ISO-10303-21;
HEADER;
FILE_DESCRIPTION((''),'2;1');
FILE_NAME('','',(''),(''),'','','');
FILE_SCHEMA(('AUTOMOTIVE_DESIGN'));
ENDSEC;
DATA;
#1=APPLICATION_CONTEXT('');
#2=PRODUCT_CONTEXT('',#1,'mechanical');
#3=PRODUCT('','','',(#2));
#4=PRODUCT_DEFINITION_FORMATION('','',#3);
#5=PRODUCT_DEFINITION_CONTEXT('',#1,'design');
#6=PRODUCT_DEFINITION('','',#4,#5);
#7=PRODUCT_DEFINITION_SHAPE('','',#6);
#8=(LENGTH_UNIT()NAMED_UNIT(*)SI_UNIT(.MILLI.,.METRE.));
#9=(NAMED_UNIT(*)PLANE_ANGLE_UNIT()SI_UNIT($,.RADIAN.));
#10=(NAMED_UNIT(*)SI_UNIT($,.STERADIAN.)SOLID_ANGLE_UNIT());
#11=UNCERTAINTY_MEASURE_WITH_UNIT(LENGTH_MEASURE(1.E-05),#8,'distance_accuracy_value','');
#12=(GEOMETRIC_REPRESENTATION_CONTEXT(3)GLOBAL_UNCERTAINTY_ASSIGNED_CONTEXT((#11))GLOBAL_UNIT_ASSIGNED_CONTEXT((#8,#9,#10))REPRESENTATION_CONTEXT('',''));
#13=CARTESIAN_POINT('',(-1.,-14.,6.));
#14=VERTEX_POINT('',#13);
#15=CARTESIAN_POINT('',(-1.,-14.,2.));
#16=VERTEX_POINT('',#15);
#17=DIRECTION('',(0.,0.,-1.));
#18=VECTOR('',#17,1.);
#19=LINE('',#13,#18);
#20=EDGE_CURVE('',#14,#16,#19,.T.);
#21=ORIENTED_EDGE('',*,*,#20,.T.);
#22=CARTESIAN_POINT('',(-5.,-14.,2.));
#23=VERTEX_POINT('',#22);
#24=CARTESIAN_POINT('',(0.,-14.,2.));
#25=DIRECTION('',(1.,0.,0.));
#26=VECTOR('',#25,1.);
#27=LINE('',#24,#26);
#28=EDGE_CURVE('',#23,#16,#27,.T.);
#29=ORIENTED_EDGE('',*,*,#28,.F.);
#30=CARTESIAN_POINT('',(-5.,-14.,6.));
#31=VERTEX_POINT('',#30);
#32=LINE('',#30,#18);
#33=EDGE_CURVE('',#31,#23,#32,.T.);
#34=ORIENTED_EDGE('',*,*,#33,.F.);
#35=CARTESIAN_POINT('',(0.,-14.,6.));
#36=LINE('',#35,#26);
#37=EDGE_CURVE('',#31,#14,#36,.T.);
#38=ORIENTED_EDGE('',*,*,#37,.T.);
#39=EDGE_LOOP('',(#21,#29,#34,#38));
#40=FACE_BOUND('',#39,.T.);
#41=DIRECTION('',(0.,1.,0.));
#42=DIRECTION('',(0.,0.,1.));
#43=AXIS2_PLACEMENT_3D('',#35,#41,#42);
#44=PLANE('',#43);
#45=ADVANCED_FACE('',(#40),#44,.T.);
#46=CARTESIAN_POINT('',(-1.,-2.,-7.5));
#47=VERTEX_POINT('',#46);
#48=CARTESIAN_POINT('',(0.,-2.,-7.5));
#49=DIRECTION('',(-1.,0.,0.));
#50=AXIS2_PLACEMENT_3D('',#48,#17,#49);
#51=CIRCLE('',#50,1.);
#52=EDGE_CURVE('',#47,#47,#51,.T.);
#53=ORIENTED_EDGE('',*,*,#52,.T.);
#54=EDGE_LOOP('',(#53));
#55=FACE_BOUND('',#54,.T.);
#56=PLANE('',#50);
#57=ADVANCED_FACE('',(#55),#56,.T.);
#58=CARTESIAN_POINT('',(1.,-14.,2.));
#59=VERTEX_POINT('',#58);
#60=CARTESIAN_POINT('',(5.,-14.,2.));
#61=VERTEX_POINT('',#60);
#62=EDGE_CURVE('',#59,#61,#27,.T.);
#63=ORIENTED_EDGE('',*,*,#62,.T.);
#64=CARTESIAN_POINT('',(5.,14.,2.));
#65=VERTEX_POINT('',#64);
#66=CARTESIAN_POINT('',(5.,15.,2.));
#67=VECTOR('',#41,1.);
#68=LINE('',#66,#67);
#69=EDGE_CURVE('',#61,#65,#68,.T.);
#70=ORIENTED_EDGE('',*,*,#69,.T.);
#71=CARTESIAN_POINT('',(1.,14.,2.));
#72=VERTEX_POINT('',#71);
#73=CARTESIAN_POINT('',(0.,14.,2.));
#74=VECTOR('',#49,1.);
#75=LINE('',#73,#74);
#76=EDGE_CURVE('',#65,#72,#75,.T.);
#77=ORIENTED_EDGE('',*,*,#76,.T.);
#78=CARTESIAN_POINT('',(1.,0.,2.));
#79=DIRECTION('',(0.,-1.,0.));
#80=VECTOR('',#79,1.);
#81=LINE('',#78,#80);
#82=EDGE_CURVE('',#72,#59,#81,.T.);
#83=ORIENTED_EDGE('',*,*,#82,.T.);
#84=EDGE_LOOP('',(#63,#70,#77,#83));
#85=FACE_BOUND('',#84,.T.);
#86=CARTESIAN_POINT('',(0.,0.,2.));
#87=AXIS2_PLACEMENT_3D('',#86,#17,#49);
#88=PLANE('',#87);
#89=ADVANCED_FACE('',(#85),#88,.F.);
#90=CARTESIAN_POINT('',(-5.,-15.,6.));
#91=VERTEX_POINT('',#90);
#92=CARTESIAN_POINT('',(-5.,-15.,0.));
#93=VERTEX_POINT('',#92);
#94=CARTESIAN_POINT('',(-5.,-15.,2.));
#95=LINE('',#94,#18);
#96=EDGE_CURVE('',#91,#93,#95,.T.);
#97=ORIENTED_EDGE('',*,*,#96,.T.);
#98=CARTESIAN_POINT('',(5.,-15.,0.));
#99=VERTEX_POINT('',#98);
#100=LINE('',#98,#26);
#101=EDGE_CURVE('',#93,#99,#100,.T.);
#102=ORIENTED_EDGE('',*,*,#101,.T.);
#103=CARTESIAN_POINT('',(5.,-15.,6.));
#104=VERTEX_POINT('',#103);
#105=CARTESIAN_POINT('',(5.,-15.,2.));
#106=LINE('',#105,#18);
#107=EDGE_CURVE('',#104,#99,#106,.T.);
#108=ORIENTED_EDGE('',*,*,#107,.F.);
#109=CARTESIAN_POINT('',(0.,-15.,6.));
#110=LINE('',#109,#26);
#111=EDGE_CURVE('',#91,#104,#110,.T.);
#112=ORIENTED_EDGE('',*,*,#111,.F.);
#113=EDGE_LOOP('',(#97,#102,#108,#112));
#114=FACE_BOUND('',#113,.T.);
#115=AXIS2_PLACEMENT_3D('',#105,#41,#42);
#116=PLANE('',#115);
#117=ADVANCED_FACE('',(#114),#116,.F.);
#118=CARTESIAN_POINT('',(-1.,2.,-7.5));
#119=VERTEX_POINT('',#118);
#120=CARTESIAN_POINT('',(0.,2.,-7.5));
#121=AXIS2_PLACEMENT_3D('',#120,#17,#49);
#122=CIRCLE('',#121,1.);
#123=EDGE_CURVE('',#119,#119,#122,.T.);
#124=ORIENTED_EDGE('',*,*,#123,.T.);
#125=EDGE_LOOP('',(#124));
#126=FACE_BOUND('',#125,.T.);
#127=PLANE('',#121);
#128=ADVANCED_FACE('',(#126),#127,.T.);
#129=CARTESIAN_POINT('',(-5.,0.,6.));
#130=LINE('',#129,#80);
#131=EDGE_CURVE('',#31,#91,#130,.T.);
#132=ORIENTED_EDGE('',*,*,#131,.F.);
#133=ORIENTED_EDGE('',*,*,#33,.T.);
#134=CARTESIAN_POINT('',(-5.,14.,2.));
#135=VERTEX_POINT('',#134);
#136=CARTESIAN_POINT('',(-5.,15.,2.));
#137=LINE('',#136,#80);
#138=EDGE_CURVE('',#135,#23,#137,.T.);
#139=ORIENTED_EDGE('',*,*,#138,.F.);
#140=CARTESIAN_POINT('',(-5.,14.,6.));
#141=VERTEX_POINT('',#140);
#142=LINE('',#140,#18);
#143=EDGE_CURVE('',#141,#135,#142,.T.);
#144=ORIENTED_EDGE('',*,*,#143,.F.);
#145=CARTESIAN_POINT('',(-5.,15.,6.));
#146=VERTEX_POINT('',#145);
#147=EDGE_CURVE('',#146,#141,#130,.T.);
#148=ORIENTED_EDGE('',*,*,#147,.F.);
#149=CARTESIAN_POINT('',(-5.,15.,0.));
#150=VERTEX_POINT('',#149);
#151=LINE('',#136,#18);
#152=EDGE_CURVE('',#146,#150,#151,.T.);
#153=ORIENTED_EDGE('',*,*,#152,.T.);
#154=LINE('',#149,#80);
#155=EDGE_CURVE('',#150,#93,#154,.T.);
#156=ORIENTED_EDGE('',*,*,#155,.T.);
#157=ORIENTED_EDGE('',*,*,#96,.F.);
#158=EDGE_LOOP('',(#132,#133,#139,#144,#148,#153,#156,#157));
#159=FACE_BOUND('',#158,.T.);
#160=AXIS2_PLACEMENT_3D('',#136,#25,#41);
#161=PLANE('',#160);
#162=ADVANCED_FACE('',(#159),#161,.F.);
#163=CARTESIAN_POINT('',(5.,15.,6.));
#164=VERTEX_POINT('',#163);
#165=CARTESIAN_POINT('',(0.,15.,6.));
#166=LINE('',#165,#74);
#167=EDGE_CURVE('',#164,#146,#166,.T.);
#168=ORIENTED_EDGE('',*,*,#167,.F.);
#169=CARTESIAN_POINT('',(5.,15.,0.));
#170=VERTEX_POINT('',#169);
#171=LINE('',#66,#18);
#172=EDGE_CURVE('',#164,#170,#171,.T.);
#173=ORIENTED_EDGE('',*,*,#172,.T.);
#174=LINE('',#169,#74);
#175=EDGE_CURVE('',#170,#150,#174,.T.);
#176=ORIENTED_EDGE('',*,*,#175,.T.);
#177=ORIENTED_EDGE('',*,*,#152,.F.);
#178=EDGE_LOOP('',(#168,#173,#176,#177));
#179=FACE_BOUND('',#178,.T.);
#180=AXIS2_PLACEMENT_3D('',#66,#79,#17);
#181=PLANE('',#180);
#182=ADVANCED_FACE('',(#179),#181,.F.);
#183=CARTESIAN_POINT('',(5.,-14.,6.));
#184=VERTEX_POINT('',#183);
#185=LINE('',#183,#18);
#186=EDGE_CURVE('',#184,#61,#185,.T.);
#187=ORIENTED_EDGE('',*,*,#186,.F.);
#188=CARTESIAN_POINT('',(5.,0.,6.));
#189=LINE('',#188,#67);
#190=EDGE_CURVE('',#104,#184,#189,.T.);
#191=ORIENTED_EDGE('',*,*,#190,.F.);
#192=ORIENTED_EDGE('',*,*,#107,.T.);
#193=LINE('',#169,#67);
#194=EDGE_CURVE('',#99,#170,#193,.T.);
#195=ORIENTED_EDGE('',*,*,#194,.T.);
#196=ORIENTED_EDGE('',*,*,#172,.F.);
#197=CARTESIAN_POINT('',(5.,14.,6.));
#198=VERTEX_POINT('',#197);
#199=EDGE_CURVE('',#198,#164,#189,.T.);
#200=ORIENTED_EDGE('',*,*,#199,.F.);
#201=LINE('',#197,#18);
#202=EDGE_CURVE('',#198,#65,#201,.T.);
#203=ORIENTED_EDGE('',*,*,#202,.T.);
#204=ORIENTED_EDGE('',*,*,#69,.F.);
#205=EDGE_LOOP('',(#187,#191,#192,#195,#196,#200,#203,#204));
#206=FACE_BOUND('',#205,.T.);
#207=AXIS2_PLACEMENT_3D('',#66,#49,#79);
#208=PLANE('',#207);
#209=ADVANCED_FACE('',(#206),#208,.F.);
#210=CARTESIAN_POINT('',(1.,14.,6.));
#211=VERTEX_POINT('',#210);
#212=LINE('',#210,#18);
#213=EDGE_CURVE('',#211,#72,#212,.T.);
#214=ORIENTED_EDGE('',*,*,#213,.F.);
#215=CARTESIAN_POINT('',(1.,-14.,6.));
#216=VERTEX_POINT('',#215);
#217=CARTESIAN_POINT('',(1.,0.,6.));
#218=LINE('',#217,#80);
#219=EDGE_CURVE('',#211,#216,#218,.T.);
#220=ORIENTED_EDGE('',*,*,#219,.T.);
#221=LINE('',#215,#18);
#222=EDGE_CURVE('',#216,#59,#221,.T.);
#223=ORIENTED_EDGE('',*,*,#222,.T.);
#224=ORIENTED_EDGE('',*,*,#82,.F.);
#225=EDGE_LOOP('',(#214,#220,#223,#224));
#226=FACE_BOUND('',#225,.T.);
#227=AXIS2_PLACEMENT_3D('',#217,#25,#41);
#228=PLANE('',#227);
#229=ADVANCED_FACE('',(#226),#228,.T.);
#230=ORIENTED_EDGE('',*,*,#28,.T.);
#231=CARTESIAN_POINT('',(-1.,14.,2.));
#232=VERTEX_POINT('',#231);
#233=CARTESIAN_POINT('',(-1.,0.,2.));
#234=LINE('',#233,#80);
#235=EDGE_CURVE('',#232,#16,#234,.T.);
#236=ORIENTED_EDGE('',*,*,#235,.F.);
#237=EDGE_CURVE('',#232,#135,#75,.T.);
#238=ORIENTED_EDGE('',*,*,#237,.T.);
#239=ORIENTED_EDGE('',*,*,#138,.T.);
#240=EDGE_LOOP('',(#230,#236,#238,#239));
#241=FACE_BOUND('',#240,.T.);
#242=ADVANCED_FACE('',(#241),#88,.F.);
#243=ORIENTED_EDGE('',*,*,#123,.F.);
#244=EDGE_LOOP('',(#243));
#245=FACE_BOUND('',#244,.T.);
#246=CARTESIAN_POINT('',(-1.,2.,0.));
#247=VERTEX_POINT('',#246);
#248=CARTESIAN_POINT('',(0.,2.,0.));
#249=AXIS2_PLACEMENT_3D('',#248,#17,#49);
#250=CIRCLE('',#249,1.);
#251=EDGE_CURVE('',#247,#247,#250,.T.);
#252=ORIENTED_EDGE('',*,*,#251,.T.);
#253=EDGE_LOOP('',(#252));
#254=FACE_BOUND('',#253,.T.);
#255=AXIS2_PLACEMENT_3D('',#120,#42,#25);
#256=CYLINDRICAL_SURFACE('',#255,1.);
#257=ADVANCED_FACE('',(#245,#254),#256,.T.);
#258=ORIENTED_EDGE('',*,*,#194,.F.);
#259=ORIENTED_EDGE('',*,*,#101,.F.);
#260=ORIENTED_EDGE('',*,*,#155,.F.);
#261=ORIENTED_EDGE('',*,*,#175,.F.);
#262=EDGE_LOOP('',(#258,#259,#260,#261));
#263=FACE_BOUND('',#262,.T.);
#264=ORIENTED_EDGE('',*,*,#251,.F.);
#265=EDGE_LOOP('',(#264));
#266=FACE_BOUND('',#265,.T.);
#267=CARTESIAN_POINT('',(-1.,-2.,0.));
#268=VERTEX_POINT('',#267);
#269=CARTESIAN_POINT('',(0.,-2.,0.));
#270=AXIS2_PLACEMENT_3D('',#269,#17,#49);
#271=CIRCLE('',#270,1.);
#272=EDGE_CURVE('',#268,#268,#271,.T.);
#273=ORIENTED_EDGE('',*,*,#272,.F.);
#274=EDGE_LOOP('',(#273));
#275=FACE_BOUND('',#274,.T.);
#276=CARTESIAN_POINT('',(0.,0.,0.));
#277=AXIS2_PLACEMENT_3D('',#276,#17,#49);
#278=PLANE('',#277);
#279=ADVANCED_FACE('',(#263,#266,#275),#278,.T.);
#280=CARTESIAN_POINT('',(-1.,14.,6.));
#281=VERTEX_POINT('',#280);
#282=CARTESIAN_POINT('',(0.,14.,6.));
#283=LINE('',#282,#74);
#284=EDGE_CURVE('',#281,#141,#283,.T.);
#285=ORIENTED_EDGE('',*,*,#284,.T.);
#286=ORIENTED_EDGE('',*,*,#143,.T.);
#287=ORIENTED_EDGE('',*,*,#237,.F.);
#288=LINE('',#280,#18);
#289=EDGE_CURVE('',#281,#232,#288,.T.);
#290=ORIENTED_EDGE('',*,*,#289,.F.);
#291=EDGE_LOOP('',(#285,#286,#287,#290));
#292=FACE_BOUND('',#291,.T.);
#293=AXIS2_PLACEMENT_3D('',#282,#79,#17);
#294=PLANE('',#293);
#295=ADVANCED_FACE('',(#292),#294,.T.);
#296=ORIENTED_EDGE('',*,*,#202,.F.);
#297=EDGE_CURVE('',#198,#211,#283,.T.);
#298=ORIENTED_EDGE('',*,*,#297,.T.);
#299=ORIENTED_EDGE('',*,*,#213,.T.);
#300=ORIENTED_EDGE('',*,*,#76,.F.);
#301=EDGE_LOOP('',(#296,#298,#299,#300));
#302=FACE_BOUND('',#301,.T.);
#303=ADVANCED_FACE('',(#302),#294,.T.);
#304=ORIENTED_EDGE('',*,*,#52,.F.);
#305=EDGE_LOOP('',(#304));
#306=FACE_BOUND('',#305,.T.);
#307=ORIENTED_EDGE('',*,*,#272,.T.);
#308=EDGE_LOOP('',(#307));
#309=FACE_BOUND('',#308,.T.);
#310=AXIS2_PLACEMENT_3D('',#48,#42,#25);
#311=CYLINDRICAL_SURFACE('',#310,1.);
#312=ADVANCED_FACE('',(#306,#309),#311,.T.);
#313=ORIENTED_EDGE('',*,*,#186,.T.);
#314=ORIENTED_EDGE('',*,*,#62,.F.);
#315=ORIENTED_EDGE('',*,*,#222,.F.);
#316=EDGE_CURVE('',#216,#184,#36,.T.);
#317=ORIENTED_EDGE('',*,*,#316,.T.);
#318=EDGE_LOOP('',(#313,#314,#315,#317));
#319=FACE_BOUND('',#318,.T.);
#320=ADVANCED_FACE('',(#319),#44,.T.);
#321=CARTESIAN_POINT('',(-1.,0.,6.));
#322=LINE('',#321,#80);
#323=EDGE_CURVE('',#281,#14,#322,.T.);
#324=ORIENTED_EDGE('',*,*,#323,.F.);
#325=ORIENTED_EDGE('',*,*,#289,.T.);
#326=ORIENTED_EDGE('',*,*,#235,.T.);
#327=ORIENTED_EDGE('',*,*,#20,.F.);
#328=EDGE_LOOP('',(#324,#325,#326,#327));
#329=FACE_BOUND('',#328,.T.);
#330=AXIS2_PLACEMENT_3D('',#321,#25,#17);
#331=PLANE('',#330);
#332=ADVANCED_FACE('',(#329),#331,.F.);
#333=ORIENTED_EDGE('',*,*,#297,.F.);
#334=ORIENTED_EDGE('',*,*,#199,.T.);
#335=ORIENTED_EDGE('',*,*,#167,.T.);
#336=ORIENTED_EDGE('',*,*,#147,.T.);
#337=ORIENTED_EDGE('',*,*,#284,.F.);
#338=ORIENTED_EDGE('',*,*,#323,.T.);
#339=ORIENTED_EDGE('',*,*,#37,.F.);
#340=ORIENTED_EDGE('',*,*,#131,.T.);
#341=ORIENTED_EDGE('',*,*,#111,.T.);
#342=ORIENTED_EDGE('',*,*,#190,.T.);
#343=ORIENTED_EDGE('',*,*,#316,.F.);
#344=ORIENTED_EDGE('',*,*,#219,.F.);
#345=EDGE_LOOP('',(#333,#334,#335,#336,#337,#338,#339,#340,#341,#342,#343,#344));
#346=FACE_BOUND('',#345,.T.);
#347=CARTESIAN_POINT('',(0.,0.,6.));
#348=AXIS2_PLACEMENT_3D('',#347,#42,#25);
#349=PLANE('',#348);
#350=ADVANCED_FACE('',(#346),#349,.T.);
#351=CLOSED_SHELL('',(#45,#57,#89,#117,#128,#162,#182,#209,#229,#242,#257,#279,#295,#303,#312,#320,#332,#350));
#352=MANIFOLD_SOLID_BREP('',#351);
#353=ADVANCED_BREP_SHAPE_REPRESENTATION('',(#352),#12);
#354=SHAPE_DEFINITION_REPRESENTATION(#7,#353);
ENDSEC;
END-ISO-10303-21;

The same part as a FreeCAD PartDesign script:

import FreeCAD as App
import Part
import Sketcher
Q = App.Units.Quantity

doc = App.newDocument("Part")
body = doc.addObject("PartDesign::Body", "Body")

sketch1 = body.newObject("Sketcher::SketchObject", "Sketch")
sketch1.AttachmentSupport = (doc.getObject("XY_Plane"), [""])
sketch1.MapMode = "FlatFace"
sketch1.addGeometry([
    Part.LineSegment(App.Vector(-5, 15, 0), App.Vector(-5, -15, 0)),
    Part.LineSegment(App.Vector(-5, -15, 0), App.Vector(5, -15, 0)),
    Part.LineSegment(App.Vector(5, -15, 0), App.Vector(5, 15, 0)),
    Part.LineSegment(App.Vector(5, 15, 0), App.Vector(-5, 15, 0)),
], False)
sketch1.addConstraint([
    Sketcher.Constraint("Coincident", 0, 2, 1, 1),
    Sketcher.Constraint("Coincident", 1, 2, 2, 1),
    Sketcher.Constraint("Coincident", 2, 2, 3, 1),
    Sketcher.Constraint("Coincident", 3, 2, 0, 1),
    Sketcher.Constraint("Vertical", 0),
    Sketcher.Constraint("Horizontal", 1),
    Sketcher.Constraint("Vertical", 2),
    Sketcher.Constraint("Horizontal", 3),
    Sketcher.Constraint("Symmetric", 0, 2, 2, 2, -1, 1),
    Sketcher.Constraint("DistanceX", 1, 1, 1, 2, Q("10 mm")),
    Sketcher.Constraint("DistanceY", 0, 2, 0, 1, Q("30 mm")),
])
pad1 = body.newObject("PartDesign::Pad", "Pad")
pad1.Profile = sketch1
pad1.Length = 2

sketch2 = body.newObject("Sketcher::SketchObject", "Sketch001")
sketch2.AttachmentSupport = (doc.getObject("XY_Plane"), [""])
sketch2.MapMode = "FlatFace"
sketch2.AttachmentOffset = App.Placement(App.Vector(0, 0, 2), App.Rotation())
sketch2.addGeometry([
    Part.LineSegment(App.Vector(1, -14, 0), App.Vector(1, 14, 0)),
    Part.LineSegment(App.Vector(1, 14, 0), App.Vector(5, 14, 0)),
    Part.LineSegment(App.Vector(5, 14, 0), App.Vector(5, 15, 0)),
    Part.LineSegment(App.Vector(5, 15, 0), App.Vector(-5, 15, 0)),
    Part.LineSegment(App.Vector(-5, 15, 0), App.Vector(-5, 14, 0)),
    Part.LineSegment(App.Vector(-5, 14, 0), App.Vector(-1, 14, 0)),
    Part.LineSegment(App.Vector(-1, 14, 0), App.Vector(-1, -14, 0)),
    Part.LineSegment(App.Vector(-1, -14, 0), App.Vector(-5, -14, 0)),
    Part.LineSegment(App.Vector(-5, -14, 0), App.Vector(-5, -15, 0)),
    Part.LineSegment(App.Vector(-5, -15, 0), App.Vector(5, -15, 0)),
    Part.LineSegment(App.Vector(5, -15, 0), App.Vector(5, -14, 0)),
    Part.LineSegment(App.Vector(5, -14, 0), App.Vector(1, -14, 0)),
], False)
sketch2.addConstraint([
    Sketcher.Constraint("Coincident", 0, 2, 1, 1),
    Sketcher.Constraint("Coincident", 1, 2, 2, 1),
    Sketcher.Constraint("Coincident", 2, 2, 3, 1),
    Sketcher.Constraint("Coincident", 3, 2, 4, 1),
    Sketcher.Constraint("Coincident", 4, 2, 5, 1),
    Sketcher.Constraint("Coincident", 5, 2, 6, 1),
    Sketcher.Constraint("Coincident", 6, 2, 7, 1),
    Sketcher.Constraint("Coincident", 7, 2, 8, 1),
    Sketcher.Constraint("Coincident", 8, 2, 9, 1),
    Sketcher.Constraint("Coincident", 9, 2, 10, 1),
    Sketcher.Constraint("Coincident", 10, 2, 11, 1),
    Sketcher.Constraint("Coincident", 11, 2, 0, 1),
    Sketcher.Constraint("Vertical", 0),
    Sketcher.Constraint("Horizontal", 1),
    Sketcher.Constraint("Vertical", 2),
    Sketcher.Constraint("Horizontal", 3),
    Sketcher.Constraint("Vertical", 4),
    Sketcher.Constraint("Horizontal", 5),
    Sketcher.Constraint("Vertical", 6),
    Sketcher.Constraint("Horizontal", 7),
    Sketcher.Constraint("Vertical", 8),
    Sketcher.Constraint("Horizontal", 9),
    Sketcher.Constraint("Vertical", 10),
    Sketcher.Constraint("Horizontal", 11),
    Sketcher.Constraint("Symmetric", 0, 2, 6, 2, -1, 1),
    Sketcher.Constraint("Symmetric", 2, 2, 8, 2, -1, 1),
    Sketcher.Constraint("Symmetric", 4, 2, 10, 2, -1, 1),
    Sketcher.Constraint("Symmetric", 1, 2, 4, 2, -2),
    Sketcher.Constraint("DistanceX", 1, 1, 1, 2, Q("4 mm")),
    Sketcher.Constraint("DistanceX", 3, 2, 3, 1, Q("10 mm")),
    Sketcher.Constraint("DistanceY", 0, 1, 0, 2, Q("28 mm")),
    Sketcher.Constraint("DistanceY", 2, 1, 2, 2, Q("1 mm")),
])
pad2 = body.newObject("PartDesign::Pad", "Pad001")
pad2.Profile = sketch2
pad2.Length = 4

sketch3 = body.newObject("Sketcher::SketchObject", "Sketch002")
sketch3.AttachmentSupport = (doc.getObject("XY_Plane"), [""])
sketch3.MapMode = "FlatFace"
sketch3.addGeometry([
    Part.Circle(App.Vector(0, 2, 0), App.Vector(0, 0, 1), 1),
    Part.Circle(App.Vector(0, -2, 0), App.Vector(0, 0, 1), 1),
], False)
sketch3.addConstraint([
    Sketcher.Constraint("Equal", 0, 1),
    Sketcher.Constraint("Symmetric", 0, 3, 1, 3, -1, 1),
    Sketcher.Constraint("PointOnObject", 0, 3, -2),
    Sketcher.Constraint("Diameter", 0, Q("2 mm")),
    Sketcher.Constraint("DistanceY", -1, 1, 0, 3, Q("2 mm")),
])
pad3 = body.newObject("PartDesign::Pad", "Pad002")
pad3.Profile = sketch3
pad3.Length = 7.5
pad3.Reversed = True

doc.recompute()
